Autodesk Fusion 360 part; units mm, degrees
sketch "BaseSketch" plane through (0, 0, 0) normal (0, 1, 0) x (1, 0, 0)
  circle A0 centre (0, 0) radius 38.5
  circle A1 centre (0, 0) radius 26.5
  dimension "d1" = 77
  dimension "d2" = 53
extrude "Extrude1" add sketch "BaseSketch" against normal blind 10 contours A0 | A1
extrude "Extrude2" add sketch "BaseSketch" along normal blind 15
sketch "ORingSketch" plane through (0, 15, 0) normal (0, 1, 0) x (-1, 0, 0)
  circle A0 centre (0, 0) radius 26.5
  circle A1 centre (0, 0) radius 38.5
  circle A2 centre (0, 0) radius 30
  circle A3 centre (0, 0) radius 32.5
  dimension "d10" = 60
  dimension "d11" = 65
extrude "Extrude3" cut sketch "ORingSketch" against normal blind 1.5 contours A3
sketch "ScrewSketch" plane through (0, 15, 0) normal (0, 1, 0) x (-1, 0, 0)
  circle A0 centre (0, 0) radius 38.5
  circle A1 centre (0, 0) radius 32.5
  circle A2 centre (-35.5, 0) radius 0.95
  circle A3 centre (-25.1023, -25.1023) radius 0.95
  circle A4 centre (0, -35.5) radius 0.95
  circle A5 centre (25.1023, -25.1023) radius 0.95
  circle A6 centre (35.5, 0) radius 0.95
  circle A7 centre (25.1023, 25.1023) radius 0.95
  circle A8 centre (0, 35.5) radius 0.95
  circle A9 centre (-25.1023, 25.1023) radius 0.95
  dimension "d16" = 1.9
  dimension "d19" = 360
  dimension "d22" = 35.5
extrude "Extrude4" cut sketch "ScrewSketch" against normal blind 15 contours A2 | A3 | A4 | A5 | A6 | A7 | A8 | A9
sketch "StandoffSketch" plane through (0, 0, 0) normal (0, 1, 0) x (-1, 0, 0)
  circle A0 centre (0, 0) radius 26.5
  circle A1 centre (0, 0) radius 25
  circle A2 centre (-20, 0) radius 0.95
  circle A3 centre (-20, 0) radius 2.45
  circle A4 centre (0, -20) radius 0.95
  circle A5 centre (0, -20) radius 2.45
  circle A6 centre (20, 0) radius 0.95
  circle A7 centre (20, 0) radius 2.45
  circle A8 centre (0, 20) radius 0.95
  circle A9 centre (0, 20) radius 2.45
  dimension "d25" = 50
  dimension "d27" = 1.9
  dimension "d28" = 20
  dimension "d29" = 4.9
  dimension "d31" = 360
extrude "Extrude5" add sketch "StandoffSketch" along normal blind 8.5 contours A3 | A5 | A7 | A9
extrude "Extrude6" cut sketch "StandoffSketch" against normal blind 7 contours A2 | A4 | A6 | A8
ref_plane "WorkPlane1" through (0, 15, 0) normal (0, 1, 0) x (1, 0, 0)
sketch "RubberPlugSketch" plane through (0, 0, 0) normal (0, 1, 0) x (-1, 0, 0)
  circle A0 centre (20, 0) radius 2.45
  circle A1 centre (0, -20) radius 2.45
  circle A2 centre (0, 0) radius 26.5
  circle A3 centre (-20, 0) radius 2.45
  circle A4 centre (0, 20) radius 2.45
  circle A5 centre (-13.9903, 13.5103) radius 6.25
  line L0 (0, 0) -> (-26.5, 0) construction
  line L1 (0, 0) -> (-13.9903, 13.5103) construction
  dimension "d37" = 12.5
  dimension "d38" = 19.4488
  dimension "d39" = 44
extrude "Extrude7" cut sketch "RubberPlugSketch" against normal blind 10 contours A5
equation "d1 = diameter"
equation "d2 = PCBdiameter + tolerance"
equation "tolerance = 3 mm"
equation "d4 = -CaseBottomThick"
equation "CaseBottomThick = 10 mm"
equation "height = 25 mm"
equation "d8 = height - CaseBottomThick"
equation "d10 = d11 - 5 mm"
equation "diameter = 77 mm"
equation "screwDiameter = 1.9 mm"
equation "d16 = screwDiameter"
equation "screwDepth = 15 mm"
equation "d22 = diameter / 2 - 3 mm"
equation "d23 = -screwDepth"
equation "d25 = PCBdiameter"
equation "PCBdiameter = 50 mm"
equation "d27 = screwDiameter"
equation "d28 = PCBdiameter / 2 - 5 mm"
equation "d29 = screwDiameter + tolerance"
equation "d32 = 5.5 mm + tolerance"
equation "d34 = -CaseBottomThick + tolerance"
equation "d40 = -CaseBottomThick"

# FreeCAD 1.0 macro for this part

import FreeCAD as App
import Part
import Sketcher
from FreeCAD import Vector

doc = App.newDocument("Part")
body = doc.addObject("PartDesign::Body", "Body")

# Sketch on XZ plane
sketch1 = doc.addObject("Sketcher::SketchObject", "Sketch")
body.addObject(sketch1)
sketch1.AttachmentSupport = (doc.XZ_Plane, [""])
sketch1.MapMode = "FlatFace"
sketch1.addGeometry(Part.Circle(Vector(0, 0, 0), Vector(0, 0, 1), 38), False)
sketch1.addConstraint([
    Sketcher.Constraint("Coincident", 0, 3, -1, 1),
    Sketcher.Constraint("Diameter", 0, 77.0),
])
pad1 = doc.addObject("PartDesign::Pad", "Pad")
body.addObject(pad1)
pad1.Profile = sketch1
pad1.Length = 10

# Sketch on XZ plane
sketch2 = doc.addObject("Sketcher::SketchObject", "Sketch001")
body.addObject(sketch2)
sketch2.AttachmentSupport = (doc.XZ_Plane, [""])
sketch2.MapMode = "FlatFace"
sketch2.addGeometry([
    Part.Circle(Vector(0, 0, 0), Vector(0, 0, 1), 38),
    Part.Circle(Vector(0, 0, 0), Vector(0, 0, 1), 26),
], False)
sketch2.addConstraint([
    Sketcher.Constraint("Coincident", 0, 3, -1, 1),
    Sketcher.Constraint("Coincident", 1, 3, -1, 1),
    Sketcher.Constraint("Diameter", 0, 77.0),
    Sketcher.Constraint("Diameter", 1, 53.0),
])
pad2 = doc.addObject("PartDesign::Pad", "Pad001")
body.addObject(pad2)
pad2.Profile = sketch2
pad2.Length = 15
pad2.Reversed = True

# Sketch on XZ plane
sketch3 = doc.addObject("Sketcher::SketchObject", "Sketch002")
body.addObject(sketch3)
sketch3.AttachmentSupport = (doc.XZ_Plane, [""])
sketch3.MapMode = "FlatFace"
sketch3.AttachmentOffset = App.Placement(Vector(0, 0, -15), App.Rotation())
sketch3.addGeometry([
    Part.Circle(Vector(0, 0, 0), Vector(0, 0, 1), 32),
    Part.Circle(Vector(0, 0, 0), Vector(0, 0, 1), 30),
], False)
sketch3.addConstraint([
    Sketcher.Constraint("Coincident", 0, 3, -1, 1),
    Sketcher.Constraint("Coincident", 1, 3, -1, 1),
    Sketcher.Constraint("Diameter", 0, 65.0),
    Sketcher.Constraint("Diameter", 1, 60.0),
])
pocket1 = doc.addObject("PartDesign::Pocket", "Pocket")
body.addObject(pocket1)
pocket1.Profile = sketch3
pocket1.Length = 1.5
pocket1.Reversed = True

# Sketch on XZ plane
sketch4 = doc.addObject("Sketcher::SketchObject", "Sketch003")
body.addObject(sketch4)
sketch4.AttachmentSupport = (doc.XZ_Plane, [""])
sketch4.MapMode = "FlatFace"
sketch4.AttachmentOffset = App.Placement(Vector(0, 0, -15), App.Rotation())
sketch4.addGeometry([
    Part.Circle(Vector(35.5, 0, 0), Vector(0, 0, 1), 0.9),  # 0
    Part.Circle(Vector(25.1, -25.1, 0), Vector(0, 0, 1), 0.9),  # 1
    Part.Circle(Vector(0, -35.5, 0), Vector(0, 0, 1), 0.9),  # 2
    Part.Circle(Vector(-25.1, -25.1, 0), Vector(0, 0, 1), 0.9),  # 3
    Part.Circle(Vector(-35.5, 0, 0), Vector(0, 0, 1), 0.9),  # 4
    Part.Circle(Vector(-25.1, 25.1, 0), Vector(0, 0, 1), 0.9),  # 5
    Part.Circle(Vector(0, 35.5, 0), Vector(0, 0, 1), 0.9),  # 6
    Part.Circle(Vector(25.1, 25.1, 0), Vector(0, 0, 1), 0.9),  # 7
], False)
sketch4.addConstraint([
    Sketcher.Constraint("Equal", 0, 1),
    Sketcher.Constraint("Equal", 1, 2),
    Sketcher.Constraint("Equal", 2, 3),
    Sketcher.Constraint("Equal", 3, 4),
    Sketcher.Constraint("Equal", 4, 5),
    Sketcher.Constraint("Equal", 5, 6),
    Sketcher.Constraint("Equal", 6, 7),
    Sketcher.Constraint("Symmetric", 0, 3, 4, 3, -1, 1),
    Sketcher.Constraint("Symmetric", 1, 3, 5, 3, -1, 1),
    Sketcher.Constraint("Symmetric", 2, 3, 6, 3, -1, 1),
    Sketcher.Constraint("Symmetric", 3, 3, 7, 3, -1, 1),
    Sketcher.Constraint("Symmetric", 1, 3, 3, 3, -2),
    Sketcher.Constraint("PointOnObject", 0, 3, -1),
    Sketcher.Constraint("PointOnObject", 2, 3, -2),
    Sketcher.Constraint("Diameter", 0, 1.9),
    Sketcher.Constraint("DistanceX", -1, 1, 0, 3, 35.5),
    Sketcher.Constraint("DistanceY", 2, 3, -1, 1, 35.5),
    Sketcher.Constraint("DistanceX", -1, 1, 1, 3, 25.1023),
    Sketcher.Constraint("DistanceY", 1, 3, -1, 1, 25.1023),
])
pocket2 = doc.addObject("PartDesign::Pocket", "Pocket001")
body.addObject(pocket2)
pocket2.Profile = sketch4
pocket2.Length = 15
pocket2.Reversed = True

# Sketch on XZ plane
sketch5 = doc.addObject("Sketcher::SketchObject", "Sketch004")
body.addObject(sketch5)
sketch5.AttachmentSupport = (doc.XZ_Plane, [""])
sketch5.MapMode = "FlatFace"
sketch5.addGeometry([
    Part.Circle(Vector(20, 0, 0), Vector(0, 0, 1), 2.5),  # 0
    Part.Circle(Vector(20, 0, 0), Vector(0, 0, 1), 0.9),  # 1
    Part.Circle(Vector(0, -20, 0), Vector(0, 0, 1), 2.5),  # 2
    Part.Circle(Vector(0, -20, 0), Vector(0, 0, 1), 0.9),  # 3
    Part.Circle(Vector(-20, 0, 0), Vector(0, 0, 1), 2.5),  # 4
    Part.Circle(Vector(-20, 0, 0), Vector(0, 0, 1), 0.9),  # 5
    Part.Circle(Vector(0, 20, 0), Vector(0, 0, 1), 2.5),  # 6
    Part.Circle(Vector(0, 20, 0), Vector(0, 0, 1), 0.9),  # 7
], False)
sketch5.addConstraint([
    Sketcher.Constraint("Coincident", 1, 3, 0, 3),
    Sketcher.Constraint("Coincident", 3, 3, 2, 3),
    Sketcher.Constraint("Coincident", 5, 3, 4, 3),
    Sketcher.Constraint("Coincident", 7, 3, 6, 3),
    Sketcher.Constraint("Equal", 0, 2),
    Sketcher.Constraint("Equal", 1, 3),
    Sketcher.Constraint("Equal", 2, 4),
    Sketcher.Constraint("Equal", 3, 5),
    Sketcher.Constraint("Equal", 4, 6),
    Sketcher.Constraint("Equal", 5, 7),
    Sketcher.Constraint("Symmetric", 0, 3, 4, 3, -1, 1),
    Sketcher.Constraint("Symmetric", 2, 3, 6, 3, -1, 1),
    Sketcher.Constraint("PointOnObject", 0, 3, -1),
    Sketcher.Constraint("PointOnObject", 2, 3, -2),
    Sketcher.Constraint("Diameter", 0, 4.9),
    Sketcher.Constraint("Diameter", 1, 1.9),
    Sketcher.Constraint("DistanceX", -1, 1, 0, 3, 20.0),
    Sketcher.Constraint("DistanceY", 2, 3, -1, 1, 20.0),
])
pad3 = doc.addObject("PartDesign::Pad", "Pad002")
body.addObject(pad3)
pad3.Profile = sketch5
pad3.Length = 8.5
pad3.Reversed = True

# Sketch on XZ plane
sketch6 = doc.addObject("Sketcher::SketchObject", "Sketch005")
body.addObject(sketch6)
sketch6.AttachmentSupport = (doc.XZ_Plane, [""])
sketch6.MapMode = "FlatFace"
sketch6.addGeometry([
    Part.Circle(Vector(20, 0, 0), Vector(0, 0, 1), 0.9),
    Part.Circle(Vector(0, -20, 0), Vector(0, 0, 1), 0.9),
    Part.Circle(Vector(-20, 0, 0), Vector(0, 0, 1), 0.9),
    Part.Circle(Vector(0, 20, 0), Vector(0, 0, 1), 0.9),
], False)
sketch6.addConstraint([
    Sketcher.Constraint("Equal", 0, 1),
    Sketcher.Constraint("Equal", 1, 2),
    Sketcher.Constraint("Equal", 2, 3),
    Sketcher.Constraint("Symmetric", 0, 3, 2, 3, -1, 1),
    Sketcher.Constraint("Symmetric", 1, 3, 3, 3, -1, 1),
    Sketcher.Constraint("PointOnObject", 0, 3, -1),
    Sketcher.Constraint("PointOnObject", 1, 3, -2),
    Sketcher.Constraint("Diameter", 0, 1.9),
    Sketcher.Constraint("DistanceX", -1, 1, 0, 3, 20.0),
    Sketcher.Constraint("DistanceY", 1, 3, -1, 1, 20.0),
])
pocket3 = doc.addObject("PartDesign::Pocket", "Pocket002")
body.addObject(pocket3)
pocket3.Profile = sketch6
pocket3.Length = 7
pocket3.Reversed = True

# Sketch on XZ plane
sketch7 = doc.addObject("Sketcher::SketchObject", "Sketch006")
body.addObject(sketch7)
sketch7.AttachmentSupport = (doc.XZ_Plane, [""])
sketch7.MapMode = "FlatFace"
sketch7.addGeometry(Part.Circle(Vector(14, 14, 0), Vector(0, 0, 1), 6), False)
sketch7.addConstraint([
    Sketcher.Constraint("Diameter", 0, 12.5),
    Sketcher.Constraint("DistanceX", -1, 1, 0, 3, 13.9903),
    Sketcher.Constraint("DistanceY", -1, 1, 0, 3, 13.5103),
])
pocket4 = doc.addObject("PartDesign::Pocket", "Pocket003")
body.addObject(pocket4)
pocket4.Profile = sketch7
pocket4.Length = 10
pocket4.Reversed = True

doc.recompute()
